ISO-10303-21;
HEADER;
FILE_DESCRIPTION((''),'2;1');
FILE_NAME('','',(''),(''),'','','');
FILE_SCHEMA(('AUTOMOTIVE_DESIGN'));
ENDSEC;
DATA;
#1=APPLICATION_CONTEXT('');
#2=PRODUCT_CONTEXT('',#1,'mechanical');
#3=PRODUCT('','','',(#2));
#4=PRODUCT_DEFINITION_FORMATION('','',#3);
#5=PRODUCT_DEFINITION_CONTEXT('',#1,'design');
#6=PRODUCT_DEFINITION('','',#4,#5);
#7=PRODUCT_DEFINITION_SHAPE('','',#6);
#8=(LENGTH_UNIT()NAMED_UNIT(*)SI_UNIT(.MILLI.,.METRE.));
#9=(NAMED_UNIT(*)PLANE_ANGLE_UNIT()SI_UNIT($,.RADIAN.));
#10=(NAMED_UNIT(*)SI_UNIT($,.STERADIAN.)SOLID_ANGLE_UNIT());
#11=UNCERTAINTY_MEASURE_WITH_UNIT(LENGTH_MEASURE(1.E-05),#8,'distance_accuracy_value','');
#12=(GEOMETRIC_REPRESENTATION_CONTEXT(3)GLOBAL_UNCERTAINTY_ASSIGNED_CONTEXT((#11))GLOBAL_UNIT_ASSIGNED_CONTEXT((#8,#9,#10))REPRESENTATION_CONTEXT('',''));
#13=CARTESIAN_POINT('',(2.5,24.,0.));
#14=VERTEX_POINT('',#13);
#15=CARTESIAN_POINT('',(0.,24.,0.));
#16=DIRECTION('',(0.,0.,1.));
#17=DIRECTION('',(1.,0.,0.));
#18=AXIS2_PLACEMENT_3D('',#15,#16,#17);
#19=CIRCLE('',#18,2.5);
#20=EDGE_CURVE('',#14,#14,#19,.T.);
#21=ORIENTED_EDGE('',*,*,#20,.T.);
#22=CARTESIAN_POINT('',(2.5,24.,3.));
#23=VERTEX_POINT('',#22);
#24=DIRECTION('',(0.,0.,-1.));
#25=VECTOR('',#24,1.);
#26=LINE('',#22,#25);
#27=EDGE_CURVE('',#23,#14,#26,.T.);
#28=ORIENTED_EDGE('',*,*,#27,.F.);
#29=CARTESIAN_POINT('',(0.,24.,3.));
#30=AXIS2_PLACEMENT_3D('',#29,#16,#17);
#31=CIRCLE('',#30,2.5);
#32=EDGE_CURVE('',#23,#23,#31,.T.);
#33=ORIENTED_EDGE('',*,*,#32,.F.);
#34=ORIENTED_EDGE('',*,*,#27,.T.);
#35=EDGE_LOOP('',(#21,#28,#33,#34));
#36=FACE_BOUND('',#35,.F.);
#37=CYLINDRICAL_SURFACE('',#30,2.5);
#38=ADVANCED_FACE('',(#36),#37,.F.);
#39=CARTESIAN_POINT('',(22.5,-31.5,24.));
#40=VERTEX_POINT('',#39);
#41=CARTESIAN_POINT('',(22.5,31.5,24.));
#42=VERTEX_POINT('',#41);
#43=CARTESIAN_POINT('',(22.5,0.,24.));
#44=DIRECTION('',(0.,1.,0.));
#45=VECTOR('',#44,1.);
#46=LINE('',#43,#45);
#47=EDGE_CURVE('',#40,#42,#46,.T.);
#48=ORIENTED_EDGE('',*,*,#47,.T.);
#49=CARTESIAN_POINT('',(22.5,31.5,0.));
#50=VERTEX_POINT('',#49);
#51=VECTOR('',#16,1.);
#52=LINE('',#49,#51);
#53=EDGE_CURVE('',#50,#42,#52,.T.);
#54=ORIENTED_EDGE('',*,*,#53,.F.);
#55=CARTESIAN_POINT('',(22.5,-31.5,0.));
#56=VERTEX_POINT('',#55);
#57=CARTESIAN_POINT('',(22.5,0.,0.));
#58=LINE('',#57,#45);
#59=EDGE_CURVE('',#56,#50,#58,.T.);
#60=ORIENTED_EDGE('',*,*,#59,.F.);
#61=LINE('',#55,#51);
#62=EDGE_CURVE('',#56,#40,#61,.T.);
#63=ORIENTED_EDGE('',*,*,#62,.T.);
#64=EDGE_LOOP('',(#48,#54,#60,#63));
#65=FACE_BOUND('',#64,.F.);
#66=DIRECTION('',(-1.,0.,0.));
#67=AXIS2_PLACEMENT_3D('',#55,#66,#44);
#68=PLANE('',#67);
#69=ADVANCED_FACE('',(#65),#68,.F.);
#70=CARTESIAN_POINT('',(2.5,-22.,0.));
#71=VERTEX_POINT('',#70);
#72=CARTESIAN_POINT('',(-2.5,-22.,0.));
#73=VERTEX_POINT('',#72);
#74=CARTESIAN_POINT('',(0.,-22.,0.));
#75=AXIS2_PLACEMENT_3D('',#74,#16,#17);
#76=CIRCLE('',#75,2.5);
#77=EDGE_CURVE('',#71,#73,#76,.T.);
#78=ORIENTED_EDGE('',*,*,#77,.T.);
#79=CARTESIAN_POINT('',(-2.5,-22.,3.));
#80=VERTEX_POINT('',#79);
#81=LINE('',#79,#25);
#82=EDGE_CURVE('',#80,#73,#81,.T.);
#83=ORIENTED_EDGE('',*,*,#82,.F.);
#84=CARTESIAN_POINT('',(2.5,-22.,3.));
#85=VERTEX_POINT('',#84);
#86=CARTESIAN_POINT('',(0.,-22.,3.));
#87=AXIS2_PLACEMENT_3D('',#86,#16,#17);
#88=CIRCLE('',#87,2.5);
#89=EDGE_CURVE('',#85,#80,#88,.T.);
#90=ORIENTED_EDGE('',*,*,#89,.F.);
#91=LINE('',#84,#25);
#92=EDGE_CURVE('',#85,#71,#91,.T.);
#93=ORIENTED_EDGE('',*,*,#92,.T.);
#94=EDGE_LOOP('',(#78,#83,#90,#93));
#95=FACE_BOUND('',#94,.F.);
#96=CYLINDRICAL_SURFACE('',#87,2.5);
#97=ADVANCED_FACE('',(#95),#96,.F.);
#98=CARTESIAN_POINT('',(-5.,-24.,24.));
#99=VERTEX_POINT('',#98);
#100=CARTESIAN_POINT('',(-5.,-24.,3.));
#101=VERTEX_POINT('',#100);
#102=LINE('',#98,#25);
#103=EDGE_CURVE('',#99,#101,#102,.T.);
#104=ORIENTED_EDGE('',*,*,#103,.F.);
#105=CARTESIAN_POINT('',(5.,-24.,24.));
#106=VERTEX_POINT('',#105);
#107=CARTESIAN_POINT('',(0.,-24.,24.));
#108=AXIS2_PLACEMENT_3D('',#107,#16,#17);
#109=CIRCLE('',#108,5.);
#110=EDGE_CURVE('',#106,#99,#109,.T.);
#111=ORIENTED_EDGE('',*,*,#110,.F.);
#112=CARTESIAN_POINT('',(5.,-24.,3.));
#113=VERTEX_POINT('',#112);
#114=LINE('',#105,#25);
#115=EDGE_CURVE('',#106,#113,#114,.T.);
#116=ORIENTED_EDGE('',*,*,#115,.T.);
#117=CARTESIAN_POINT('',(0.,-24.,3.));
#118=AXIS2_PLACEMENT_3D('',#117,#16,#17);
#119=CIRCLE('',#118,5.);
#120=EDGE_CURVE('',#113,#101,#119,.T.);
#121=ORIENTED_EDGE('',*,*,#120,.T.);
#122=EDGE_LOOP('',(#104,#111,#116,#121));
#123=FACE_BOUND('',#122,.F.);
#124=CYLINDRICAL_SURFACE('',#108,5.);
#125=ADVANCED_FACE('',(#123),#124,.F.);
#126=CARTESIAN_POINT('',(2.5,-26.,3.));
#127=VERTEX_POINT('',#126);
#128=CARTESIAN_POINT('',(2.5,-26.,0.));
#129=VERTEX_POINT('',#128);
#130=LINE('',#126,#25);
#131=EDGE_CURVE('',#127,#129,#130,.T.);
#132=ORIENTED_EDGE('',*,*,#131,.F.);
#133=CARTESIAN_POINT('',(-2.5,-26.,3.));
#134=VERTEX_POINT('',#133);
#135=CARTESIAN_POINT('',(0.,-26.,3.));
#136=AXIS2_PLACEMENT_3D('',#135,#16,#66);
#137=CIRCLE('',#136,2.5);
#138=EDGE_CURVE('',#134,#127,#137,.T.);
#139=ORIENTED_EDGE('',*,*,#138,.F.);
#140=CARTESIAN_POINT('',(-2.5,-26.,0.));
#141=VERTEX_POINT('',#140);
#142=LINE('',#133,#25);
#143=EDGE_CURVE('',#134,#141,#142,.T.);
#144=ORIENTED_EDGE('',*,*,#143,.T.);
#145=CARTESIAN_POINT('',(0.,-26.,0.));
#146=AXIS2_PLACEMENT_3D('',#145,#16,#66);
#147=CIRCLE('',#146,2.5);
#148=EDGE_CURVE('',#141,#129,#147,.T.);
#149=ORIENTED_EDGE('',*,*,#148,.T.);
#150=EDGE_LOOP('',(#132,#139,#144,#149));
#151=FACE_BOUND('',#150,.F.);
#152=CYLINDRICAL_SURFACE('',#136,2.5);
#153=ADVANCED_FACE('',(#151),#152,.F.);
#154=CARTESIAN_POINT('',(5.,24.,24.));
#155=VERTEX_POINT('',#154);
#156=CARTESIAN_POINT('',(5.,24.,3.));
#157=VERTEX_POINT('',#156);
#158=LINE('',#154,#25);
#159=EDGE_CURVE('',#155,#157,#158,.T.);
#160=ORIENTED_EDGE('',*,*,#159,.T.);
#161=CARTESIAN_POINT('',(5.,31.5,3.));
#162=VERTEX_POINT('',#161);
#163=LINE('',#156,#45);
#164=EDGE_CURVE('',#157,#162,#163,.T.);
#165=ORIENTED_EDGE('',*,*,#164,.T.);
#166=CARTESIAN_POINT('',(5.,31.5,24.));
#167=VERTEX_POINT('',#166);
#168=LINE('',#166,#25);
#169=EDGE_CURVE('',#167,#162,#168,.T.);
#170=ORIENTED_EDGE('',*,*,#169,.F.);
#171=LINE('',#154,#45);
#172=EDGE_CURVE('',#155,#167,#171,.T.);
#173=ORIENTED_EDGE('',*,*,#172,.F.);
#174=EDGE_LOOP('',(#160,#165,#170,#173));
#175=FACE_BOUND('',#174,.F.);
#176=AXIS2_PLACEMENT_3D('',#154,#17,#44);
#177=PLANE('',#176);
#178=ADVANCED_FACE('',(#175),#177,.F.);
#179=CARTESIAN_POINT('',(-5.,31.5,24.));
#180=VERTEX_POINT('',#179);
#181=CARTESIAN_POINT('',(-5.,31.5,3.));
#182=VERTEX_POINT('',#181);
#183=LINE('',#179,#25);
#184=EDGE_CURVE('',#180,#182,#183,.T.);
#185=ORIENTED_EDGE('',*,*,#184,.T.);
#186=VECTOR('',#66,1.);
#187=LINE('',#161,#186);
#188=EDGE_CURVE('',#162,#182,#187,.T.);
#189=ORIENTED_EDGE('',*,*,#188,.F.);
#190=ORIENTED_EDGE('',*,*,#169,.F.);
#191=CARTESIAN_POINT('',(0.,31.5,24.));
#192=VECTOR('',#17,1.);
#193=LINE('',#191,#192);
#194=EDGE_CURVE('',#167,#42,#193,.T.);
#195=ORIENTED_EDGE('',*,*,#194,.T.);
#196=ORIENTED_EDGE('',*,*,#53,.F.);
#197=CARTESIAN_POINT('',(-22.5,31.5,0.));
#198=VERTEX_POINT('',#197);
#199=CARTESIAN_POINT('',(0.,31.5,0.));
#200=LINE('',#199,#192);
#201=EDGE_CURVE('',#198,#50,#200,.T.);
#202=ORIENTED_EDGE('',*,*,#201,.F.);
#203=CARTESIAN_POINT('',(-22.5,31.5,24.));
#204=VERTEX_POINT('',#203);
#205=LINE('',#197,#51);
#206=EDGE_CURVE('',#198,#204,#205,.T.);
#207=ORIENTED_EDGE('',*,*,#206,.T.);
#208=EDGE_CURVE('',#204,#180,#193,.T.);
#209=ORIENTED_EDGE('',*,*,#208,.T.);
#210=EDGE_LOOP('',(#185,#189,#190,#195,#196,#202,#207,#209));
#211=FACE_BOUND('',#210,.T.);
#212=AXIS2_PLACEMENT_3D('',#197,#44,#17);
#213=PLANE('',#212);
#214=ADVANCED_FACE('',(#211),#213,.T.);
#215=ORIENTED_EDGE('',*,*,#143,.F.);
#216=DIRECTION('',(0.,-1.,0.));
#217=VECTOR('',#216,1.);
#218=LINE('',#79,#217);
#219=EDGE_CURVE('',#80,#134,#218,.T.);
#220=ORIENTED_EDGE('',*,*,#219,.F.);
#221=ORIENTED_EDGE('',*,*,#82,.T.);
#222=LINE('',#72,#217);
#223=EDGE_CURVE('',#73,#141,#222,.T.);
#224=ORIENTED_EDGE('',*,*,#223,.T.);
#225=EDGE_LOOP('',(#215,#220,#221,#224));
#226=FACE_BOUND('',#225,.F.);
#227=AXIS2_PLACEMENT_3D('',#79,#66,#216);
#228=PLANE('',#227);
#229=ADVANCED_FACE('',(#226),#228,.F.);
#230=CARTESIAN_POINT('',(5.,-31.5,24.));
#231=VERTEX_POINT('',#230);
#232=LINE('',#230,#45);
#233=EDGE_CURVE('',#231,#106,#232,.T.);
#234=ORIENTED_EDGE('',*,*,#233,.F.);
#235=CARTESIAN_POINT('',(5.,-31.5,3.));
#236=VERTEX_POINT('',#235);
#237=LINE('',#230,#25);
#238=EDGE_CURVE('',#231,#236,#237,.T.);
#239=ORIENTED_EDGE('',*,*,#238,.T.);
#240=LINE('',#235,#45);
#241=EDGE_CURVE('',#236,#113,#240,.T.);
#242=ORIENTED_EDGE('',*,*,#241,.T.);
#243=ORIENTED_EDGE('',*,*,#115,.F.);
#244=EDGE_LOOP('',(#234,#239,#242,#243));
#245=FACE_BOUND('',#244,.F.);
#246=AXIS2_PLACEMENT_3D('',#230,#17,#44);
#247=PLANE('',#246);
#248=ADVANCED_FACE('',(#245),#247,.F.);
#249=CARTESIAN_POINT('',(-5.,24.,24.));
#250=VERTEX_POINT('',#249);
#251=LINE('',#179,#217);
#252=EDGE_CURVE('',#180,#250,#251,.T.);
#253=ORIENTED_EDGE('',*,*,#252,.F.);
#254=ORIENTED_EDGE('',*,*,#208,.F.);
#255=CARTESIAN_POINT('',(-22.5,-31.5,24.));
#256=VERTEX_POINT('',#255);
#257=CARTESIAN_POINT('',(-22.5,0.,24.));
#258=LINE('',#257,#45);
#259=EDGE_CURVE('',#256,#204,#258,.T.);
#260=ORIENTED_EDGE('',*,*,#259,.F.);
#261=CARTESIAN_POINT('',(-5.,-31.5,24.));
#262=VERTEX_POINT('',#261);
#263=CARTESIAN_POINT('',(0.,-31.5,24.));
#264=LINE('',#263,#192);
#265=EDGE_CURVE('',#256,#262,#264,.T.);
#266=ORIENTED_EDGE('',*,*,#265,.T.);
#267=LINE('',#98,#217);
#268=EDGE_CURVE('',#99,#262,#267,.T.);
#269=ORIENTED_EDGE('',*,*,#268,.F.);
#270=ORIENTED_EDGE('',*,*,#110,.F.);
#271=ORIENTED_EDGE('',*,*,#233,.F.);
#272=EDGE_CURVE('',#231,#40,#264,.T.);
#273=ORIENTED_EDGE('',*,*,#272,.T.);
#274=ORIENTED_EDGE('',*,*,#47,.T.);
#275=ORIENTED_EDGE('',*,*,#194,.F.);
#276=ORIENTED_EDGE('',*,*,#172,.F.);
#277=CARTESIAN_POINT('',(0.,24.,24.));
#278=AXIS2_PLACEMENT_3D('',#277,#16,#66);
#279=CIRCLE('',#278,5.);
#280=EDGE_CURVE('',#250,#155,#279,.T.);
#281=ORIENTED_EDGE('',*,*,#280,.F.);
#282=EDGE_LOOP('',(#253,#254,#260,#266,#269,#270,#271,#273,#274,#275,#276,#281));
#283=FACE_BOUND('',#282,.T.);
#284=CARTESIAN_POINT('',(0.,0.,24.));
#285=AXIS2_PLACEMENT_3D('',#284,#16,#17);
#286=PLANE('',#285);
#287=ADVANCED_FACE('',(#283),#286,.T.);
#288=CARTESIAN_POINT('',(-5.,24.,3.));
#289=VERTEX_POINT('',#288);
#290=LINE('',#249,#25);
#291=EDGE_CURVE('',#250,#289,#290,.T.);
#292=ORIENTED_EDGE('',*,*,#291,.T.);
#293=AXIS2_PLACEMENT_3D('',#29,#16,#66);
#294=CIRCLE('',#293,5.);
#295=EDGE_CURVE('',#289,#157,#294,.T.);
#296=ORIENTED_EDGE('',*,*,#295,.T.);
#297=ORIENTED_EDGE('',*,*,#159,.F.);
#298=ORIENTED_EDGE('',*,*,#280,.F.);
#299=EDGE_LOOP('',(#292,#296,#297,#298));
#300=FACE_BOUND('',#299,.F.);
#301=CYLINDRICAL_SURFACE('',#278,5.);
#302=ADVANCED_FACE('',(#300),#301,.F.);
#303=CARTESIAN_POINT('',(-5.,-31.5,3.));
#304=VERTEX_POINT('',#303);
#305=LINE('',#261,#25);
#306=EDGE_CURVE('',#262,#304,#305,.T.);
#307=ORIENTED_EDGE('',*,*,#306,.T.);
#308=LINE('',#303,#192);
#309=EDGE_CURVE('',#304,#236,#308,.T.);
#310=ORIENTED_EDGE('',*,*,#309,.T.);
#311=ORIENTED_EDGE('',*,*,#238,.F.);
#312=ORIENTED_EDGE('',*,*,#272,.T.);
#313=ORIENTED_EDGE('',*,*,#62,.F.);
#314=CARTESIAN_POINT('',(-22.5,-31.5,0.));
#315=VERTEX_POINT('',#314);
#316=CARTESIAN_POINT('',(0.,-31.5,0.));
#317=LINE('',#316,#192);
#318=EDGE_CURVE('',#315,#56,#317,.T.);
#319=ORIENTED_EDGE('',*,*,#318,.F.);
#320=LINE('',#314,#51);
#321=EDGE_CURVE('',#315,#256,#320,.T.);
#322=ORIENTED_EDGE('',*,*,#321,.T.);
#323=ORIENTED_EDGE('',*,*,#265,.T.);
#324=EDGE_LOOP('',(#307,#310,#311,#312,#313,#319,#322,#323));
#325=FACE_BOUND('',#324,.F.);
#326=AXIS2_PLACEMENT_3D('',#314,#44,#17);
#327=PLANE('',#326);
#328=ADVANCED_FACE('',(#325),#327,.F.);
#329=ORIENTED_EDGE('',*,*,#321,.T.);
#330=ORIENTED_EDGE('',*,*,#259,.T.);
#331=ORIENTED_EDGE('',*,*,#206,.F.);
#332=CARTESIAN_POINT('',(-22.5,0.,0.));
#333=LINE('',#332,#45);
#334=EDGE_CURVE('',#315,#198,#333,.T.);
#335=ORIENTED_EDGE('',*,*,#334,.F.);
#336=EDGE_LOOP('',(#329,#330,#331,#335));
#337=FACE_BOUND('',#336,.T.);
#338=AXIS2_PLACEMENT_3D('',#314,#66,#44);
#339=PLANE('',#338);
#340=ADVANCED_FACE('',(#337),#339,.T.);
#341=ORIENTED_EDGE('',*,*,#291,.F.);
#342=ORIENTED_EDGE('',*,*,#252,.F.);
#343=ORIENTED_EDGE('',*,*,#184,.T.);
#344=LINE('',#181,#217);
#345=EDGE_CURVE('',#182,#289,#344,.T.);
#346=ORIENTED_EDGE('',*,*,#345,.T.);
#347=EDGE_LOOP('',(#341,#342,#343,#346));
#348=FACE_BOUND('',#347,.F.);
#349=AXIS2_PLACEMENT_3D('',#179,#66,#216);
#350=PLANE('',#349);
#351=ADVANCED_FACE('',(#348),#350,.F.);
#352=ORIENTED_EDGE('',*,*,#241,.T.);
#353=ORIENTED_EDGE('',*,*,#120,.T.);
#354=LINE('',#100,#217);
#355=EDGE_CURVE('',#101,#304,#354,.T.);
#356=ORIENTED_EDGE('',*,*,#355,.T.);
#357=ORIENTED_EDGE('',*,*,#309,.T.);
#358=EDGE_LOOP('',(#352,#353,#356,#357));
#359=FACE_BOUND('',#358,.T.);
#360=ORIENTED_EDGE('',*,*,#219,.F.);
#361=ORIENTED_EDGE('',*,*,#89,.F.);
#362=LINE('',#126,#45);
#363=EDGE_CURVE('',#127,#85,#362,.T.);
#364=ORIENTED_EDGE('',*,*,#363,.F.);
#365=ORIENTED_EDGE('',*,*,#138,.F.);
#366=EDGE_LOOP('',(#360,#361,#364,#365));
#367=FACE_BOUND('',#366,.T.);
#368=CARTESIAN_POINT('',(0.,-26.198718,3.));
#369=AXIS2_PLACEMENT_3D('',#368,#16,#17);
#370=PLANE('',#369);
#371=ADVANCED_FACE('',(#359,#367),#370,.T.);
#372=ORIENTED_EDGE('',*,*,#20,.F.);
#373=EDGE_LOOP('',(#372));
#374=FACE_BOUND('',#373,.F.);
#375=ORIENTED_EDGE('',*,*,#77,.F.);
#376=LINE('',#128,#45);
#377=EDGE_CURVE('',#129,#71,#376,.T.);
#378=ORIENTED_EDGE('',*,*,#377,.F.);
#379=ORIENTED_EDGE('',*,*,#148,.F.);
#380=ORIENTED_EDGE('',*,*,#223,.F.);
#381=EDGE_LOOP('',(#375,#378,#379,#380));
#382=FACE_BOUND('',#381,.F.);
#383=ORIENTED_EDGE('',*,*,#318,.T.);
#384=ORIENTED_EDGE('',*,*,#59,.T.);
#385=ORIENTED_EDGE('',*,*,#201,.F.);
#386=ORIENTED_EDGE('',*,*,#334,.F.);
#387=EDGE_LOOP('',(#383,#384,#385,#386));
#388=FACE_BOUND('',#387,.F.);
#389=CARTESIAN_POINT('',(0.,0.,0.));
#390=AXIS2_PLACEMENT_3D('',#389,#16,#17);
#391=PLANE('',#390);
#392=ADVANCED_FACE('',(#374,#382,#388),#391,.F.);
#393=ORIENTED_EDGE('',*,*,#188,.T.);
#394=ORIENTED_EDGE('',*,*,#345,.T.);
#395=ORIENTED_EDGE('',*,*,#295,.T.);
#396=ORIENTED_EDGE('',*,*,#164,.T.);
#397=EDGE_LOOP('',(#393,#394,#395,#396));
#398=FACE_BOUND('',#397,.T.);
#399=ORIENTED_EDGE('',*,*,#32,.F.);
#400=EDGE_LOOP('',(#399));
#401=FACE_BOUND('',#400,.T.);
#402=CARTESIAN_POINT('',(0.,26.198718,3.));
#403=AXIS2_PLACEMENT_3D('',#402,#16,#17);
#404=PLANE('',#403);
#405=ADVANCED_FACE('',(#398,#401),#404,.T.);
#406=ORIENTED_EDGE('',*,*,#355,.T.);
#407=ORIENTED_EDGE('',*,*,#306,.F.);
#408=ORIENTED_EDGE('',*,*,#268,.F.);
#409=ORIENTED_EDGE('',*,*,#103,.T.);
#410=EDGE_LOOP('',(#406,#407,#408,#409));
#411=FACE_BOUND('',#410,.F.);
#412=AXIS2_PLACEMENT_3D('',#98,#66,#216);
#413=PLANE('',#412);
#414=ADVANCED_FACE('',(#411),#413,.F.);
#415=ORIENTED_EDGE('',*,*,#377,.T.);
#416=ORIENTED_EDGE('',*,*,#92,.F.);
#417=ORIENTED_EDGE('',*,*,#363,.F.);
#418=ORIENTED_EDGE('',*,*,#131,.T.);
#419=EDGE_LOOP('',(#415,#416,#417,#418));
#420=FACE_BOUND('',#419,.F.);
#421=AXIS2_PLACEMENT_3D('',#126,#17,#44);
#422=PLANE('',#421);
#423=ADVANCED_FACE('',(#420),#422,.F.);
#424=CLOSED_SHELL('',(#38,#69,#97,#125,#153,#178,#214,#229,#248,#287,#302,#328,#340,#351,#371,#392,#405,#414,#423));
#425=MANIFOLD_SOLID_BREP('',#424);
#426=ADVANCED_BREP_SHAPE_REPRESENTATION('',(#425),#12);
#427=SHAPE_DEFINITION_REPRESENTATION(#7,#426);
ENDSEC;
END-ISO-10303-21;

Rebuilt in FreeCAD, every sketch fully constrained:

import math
import FreeCAD as App
import Part
import Sketcher


def add_polygon(sketch, points):
    """Adds a closed chain of lines whose ends are joined by coincident constraints."""
    first, n = sketch.GeometryCount, len(points)
    for a, b in zip(points, points[1:] + points[:1]):
        sketch.addGeometry(Part.LineSegment(App.Vector(*a, 0), App.Vector(*b, 0)), False)
    for i in range(n):
        sketch.addConstraint(Sketcher.Constraint("Coincident", first + i, 2, first + (i + 1) % n, 1))

doc = App.newDocument("Part")
body = doc.addObject("PartDesign::Body", "Body")

# Sketch on XY plane
sketch1 = doc.addObject("Sketcher::SketchObject", "Sketch")
body.addObject(sketch1)
sketch1.AttachmentSupport = (doc.XY_Plane, [""])
sketch1.MapMode = "FlatFace"
add_polygon(sketch1, [(-22.5, 31.5), (-22.5, -31.5), (22.5, -31.5), (22.5, 31.5)])  # lines 0-3
sketch1.addConstraint([
    Sketcher.Constraint("Vertical", 0),
    Sketcher.Constraint("Horizontal", 1),
    Sketcher.Constraint("Vertical", 2),
    Sketcher.Constraint("Horizontal", 3),
    Sketcher.Constraint("Symmetric", 0, 2, 2, 2, -1, 1),
    Sketcher.Constraint("DistanceX", 1, 1, 1, 2, 45.0),
    Sketcher.Constraint("DistanceY", 0, 2, 0, 1, 63.0),
])
pad1 = doc.addObject("PartDesign::Pad", "Pad")
body.addObject(pad1)
pad1.Profile = sketch1
pad1.Length = 24

# Sketch on XY plane
sketch2 = doc.addObject("Sketcher::SketchObject", "Sketch001")
body.addObject(sketch2)
sketch2.AttachmentSupport = (doc.XY_Plane, [""])
sketch2.MapMode = "FlatFace"
sketch2.AttachmentOffset = App.Placement(App.Vector(0, 0, 24), App.Rotation())
sketch2.addGeometry([
    Part.LineSegment(App.Vector(5, 31.5, 0), App.Vector(-5, 31.5, 0)),  # 0
    Part.LineSegment(App.Vector(-5, 31.5, 0), App.Vector(-5, 24, 0)),  # 1
    Part.ArcOfCircle(Part.Circle(App.Vector(0, 24, 0), App.Vector(0, 0, 1), 5), math.radians(180), math.radians(360)),  # 2
    Part.LineSegment(App.Vector(5, 24, 0), App.Vector(5, 31.5, 0)),  # 3
    Part.LineSegment(App.Vector(-5, -24, 0), App.Vector(-5, -31.5, 0)),  # 4
    Part.LineSegment(App.Vector(-5, -31.5, 0), App.Vector(5, -31.5, 0)),  # 5
    Part.LineSegment(App.Vector(5, -31.5, 0), App.Vector(5, -24, 0)),  # 6
    Part.ArcOfCircle(Part.Circle(App.Vector(0, -24, 0), App.Vector(0, 0, 1), 5), math.radians(0), math.radians(180)),  # 7
], False)
sketch2.addConstraint([
    Sketcher.Constraint("Coincident", 0, 2, 1, 1),
    Sketcher.Constraint("Tangent", 1, 2, 2, 1),
    Sketcher.Constraint("Tangent", 2, 2, 3, 1),
    Sketcher.Constraint("Coincident", 3, 2, 0, 1),
    Sketcher.Constraint("Coincident", 4, 2, 5, 1),
    Sketcher.Constraint("Coincident", 5, 2, 6, 1),
    Sketcher.Constraint("Tangent", 6, 2, 7, 1),
    Sketcher.Constraint("Tangent", 7, 2, 4, 1),
    Sketcher.Constraint("Horizontal", 0),
    Sketcher.Constraint("Vertical", 1),
    Sketcher.Constraint("Vertical", 3),
    Sketcher.Constraint("Vertical", 4),
    Sketcher.Constraint("Horizontal", 5),
    Sketcher.Constraint("Vertical", 6),
    Sketcher.Constraint("Equal", 2, 7),
    Sketcher.Constraint("Symmetric", 2, 3, 7, 3, -1, 1),
    Sketcher.Constraint("Symmetric", 0, 2, 4, 2, -1),
    Sketcher.Constraint("Radius", 2, 5.0),
    Sketcher.Constraint("DistanceY", 1, 2, 1, 1, 7.5),
    Sketcher.Constraint("DistanceY", -1, 1, 2, 3, 24.0),
])
pocket1 = doc.addObject("PartDesign::Pocket", "Pocket")
body.addObject(pocket1)
pocket1.Profile = sketch2
pocket1.Length = 21

# Sketch on XY plane
sketch3 = doc.addObject("Sketcher::SketchObject", "Sketch002")
body.addObject(sketch3)
sketch3.AttachmentSupport = (doc.XY_Plane, [""])
sketch3.MapMode = "FlatFace"
sketch3.AttachmentOffset = App.Placement(App.Vector(0, 0, 3), App.Rotation())
sketch3.addGeometry([
    Part.Circle(App.Vector(0, 24, 0), App.Vector(0, 0, 1), 2.5),  # 0
    Part.LineSegment(App.Vector(2.5, -26, 0), App.Vector(2.5, -22, 0)),  # 1
    Part.ArcOfCircle(Part.Circle(App.Vector(0, -22, 0), App.Vector(0, 0, 1), 2.5), math.radians(0), math.radians(180)),  # 2
    Part.LineSegment(App.Vector(-2.5, -22, 0), App.Vector(-2.5, -26, 0)),  # 3
    Part.ArcOfCircle(Part.Circle(App.Vector(0, -26, 0), App.Vector(0, 0, 1), 2.5), math.radians(180), math.radians(360)),  # 4
], False)
sketch3.addConstraint([
    Sketcher.Constraint("Tangent", 1, 2, 2, 1),
    Sketcher.Constraint("Tangent", 2, 2, 3, 1),
    Sketcher.Constraint("Tangent", 3, 2, 4, 1),
    Sketcher.Constraint("Tangent", 4, 2, 1, 1),
    Sketcher.Constraint("Vertical", 1),
    Sketcher.Constraint("Vertical", 3),
    Sketcher.Constraint("Equal", 0, 2),
    Sketcher.Constraint("PointOnObject", 0, 3, -2),
    Sketcher.Constraint("PointOnObject", 2, 3, -2),
    Sketcher.Constraint("Diameter", 0, 5.0),
    Sketcher.Constraint("DistanceY", 1, 1, 1, 2, 4.0),
    Sketcher.Constraint("DistanceY", -1, 1, 0, 3, 24.0),
    Sketcher.Constraint("DistanceY", 2, 3, -1, 1, 22.0),
])
pocket2 = doc.addObject("PartDesign::Pocket", "Pocket001")
body.addObject(pocket2)
pocket2.Profile = sketch3
pocket2.Type = "ThroughAll"

doc.recompute()
